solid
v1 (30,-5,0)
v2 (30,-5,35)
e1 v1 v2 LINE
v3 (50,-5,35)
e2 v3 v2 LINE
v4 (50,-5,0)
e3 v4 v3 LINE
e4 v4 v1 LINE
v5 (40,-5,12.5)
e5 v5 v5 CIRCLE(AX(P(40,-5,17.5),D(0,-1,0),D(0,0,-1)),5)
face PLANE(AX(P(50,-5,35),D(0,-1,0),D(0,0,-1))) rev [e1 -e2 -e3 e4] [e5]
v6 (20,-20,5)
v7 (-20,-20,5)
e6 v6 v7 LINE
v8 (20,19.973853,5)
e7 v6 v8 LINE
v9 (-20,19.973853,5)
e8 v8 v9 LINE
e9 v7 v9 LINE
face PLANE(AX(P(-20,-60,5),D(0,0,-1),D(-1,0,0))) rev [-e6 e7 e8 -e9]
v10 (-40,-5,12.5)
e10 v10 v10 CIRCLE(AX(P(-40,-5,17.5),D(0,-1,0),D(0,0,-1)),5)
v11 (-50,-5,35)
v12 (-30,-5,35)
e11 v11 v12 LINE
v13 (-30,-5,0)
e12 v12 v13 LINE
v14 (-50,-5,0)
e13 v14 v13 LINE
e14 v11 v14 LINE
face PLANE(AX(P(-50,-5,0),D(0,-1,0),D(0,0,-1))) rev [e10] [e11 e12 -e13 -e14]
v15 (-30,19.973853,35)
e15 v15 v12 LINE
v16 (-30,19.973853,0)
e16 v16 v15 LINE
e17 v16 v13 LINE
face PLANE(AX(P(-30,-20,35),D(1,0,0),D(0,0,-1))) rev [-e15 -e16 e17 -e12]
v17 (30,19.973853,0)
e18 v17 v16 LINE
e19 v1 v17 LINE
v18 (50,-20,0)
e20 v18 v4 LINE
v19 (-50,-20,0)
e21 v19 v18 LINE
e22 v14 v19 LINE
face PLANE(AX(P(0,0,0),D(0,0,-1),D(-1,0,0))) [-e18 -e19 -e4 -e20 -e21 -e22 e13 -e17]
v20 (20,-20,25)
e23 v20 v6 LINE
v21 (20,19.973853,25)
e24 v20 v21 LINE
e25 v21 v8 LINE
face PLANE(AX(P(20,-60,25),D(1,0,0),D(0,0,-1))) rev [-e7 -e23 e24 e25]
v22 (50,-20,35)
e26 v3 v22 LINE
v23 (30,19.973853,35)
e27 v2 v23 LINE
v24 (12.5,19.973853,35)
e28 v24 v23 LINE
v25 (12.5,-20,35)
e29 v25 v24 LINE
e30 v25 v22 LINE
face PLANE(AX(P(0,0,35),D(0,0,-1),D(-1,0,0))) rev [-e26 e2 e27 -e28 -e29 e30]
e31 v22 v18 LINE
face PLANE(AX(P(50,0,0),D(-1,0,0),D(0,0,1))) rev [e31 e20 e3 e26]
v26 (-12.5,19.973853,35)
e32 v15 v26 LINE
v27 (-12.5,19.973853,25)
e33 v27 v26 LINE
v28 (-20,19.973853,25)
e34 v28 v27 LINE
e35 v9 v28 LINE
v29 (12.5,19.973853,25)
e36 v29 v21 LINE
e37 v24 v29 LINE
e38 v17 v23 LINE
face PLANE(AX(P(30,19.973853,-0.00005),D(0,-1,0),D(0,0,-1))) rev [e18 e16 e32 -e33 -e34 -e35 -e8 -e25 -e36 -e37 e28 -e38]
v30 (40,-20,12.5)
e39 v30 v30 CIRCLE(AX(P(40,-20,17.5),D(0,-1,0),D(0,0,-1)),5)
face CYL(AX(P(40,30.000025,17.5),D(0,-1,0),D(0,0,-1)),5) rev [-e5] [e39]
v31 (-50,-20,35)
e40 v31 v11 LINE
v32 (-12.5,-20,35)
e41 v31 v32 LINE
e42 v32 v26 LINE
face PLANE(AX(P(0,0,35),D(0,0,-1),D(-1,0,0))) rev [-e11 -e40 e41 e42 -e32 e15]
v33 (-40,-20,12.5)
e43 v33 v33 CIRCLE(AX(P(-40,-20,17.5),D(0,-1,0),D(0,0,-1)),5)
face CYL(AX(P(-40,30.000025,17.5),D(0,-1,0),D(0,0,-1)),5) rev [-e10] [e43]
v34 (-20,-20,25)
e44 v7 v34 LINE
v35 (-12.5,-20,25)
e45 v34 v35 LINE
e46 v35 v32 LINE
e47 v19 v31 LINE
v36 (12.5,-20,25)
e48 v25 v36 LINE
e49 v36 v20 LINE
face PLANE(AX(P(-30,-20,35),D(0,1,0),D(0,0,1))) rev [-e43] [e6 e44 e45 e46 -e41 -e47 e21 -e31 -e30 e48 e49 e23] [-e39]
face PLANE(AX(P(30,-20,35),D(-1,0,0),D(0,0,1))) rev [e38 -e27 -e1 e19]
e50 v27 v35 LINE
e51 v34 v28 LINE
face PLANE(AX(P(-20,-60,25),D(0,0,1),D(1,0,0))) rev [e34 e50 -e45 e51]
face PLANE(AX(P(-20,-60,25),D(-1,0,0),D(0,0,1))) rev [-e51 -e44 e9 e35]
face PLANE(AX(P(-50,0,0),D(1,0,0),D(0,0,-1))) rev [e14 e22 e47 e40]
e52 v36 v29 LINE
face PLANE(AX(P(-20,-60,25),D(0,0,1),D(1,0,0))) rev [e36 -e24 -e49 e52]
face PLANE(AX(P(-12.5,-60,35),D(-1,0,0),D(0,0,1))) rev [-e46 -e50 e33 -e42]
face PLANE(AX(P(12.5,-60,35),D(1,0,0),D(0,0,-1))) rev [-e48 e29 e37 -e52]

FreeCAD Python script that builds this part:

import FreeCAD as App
import Part
import Sketcher

doc = App.newDocument("Part")
params = doc.addObject("Spreadsheet::Sheet", "Params")
for row, (alias, value) in enumerate([
    ("sketch1_width", "60 mm"),
    ("sketch1_height", "40 mm"),
    ("pad1_length", "35 mm"),
    ("sketch2_width", "40 mm"),
    ("sketch2_height", "20 mm"),
    ("pocket1_length", "80 mm"),
    ("sketch3_width", "25 mm"),
    ("sketch3_height", "10 mm"),
    ("pocket2_length", "80 mm"),
    ("sketch4_width", "15 mm"),
    ("sketch4_height", "35 mm"),
    ("pad2_length", "20 mm"),
    ("sketch5_width", "15 mm"),
    ("sketch5_height", "35 mm"),
    ("pad3_length", "20 mm"),
    ("sketch6_width", "60 mm"),
    ("sketch6_height", "35 mm"),
    ("pad4_length", "10 mm"),
    ("sketch7_diameter", "10 mm"),
    ("sketch8_width", "60 mm"),
], start=1):
    params.set(f"A{row}", alias)
    params.set(f"B{row}", "=" + value)
    params.setAlias(f"B{row}", alias)

body = doc.addObject("PartDesign::Body", "Body")

# Sketch on XY plane
sketch1 = body.newObject("Sketcher::SketchObject", "Sketch")
sketch1.AttachmentSupport = (doc.getObject("XY_Plane"), [""])
sketch1.MapMode = "FlatFace"
sketch1.addGeometry([
    Part.LineSegment(App.Vector(-30, 20, 0), App.Vector(-30, -20, 0)),
    Part.LineSegment(App.Vector(-30, -20, 0), App.Vector(30, -20, 0)),
    Part.LineSegment(App.Vector(30, -20, 0), App.Vector(30, 20, 0)),
    Part.LineSegment(App.Vector(30, 20, 0), App.Vector(-30, 20, 0)),
], False)
sketch1.addConstraint([
    Sketcher.Constraint("Coincident", 0, 2, 1, 1),
    Sketcher.Constraint("Coincident", 1, 2, 2, 1),
    Sketcher.Constraint("Coincident", 2, 2, 3, 1),
    Sketcher.Constraint("Coincident", 3, 2, 0, 1),
    Sketcher.Constraint("Vertical", 0),
    Sketcher.Constraint("Horizontal", 1),
    Sketcher.Constraint("Vertical", 2),
    Sketcher.Constraint("Horizontal", 3),
    Sketcher.Constraint("Symmetric", 0, 2, 2, 2, -1, 1),
    Sketcher.Constraint("DistanceX", 1, 1, 1, 2, 60.0),
    Sketcher.Constraint("DistanceY", 0, 2, 0, 1, 40.0),
])
sketch1.setExpression("Constraints[9]", "Params.sketch1_width")
sketch1.setExpression("Constraints[10]", "Params.sketch1_height")
pad1 = body.newObject("PartDesign::Pad", "Pad")
pad1.Profile = sketch1
pad1.setExpression("Length", "Params.pad1_length")

# Sketch on XZ plane
sketch2 = body.newObject("Sketcher::SketchObject", "Sketch001")
sketch2.AttachmentSupport = (doc.getObject("XZ_Plane"), [""])
sketch2.MapMode = "FlatFace"
sketch2.AttachmentOffset = App.Placement(App.Vector(0, 0, -20), App.Rotation())
sketch2.addGeometry([
    Part.LineSegment(App.Vector(-20, 5, 0), App.Vector(-20, 25, 0)),
    Part.LineSegment(App.Vector(-20, 25, 0), App.Vector(20, 25, 0)),
    Part.LineSegment(App.Vector(20, 25, 0), App.Vector(20, 5, 0)),
    Part.LineSegment(App.Vector(20, 5, 0), App.Vector(-20, 5, 0)),
], False)
sketch2.addConstraint([
    Sketcher.Constraint("Coincident", 0, 2, 1, 1),
    Sketcher.Constraint("Coincident", 1, 2, 2, 1),
    Sketcher.Constraint("Coincident", 2, 2, 3, 1),
    Sketcher.Constraint("Coincident", 3, 2, 0, 1),
    Sketcher.Constraint("Vertical", 0),
    Sketcher.Constraint("Horizontal", 1),
    Sketcher.Constraint("Vertical", 2),
    Sketcher.Constraint("Horizontal", 3),
    Sketcher.Constraint("DistanceX", 1, 1, 1, 2, 40.0),
    Sketcher.Constraint("DistanceY", 0, 1, 0, 2, 20.0),
    Sketcher.Constraint("DistanceX", 0, 2, -1, 1, 20.0),
    Sketcher.Constraint("DistanceY", -1, 1, 0, 2, 25.0),
])
sketch2.setExpression("Constraints[8]", "Params.sketch2_width")
sketch2.setExpression("Constraints[9]", "Params.sketch2_height")
pocket1 = body.newObject("PartDesign::Pocket", "Pocket")
pocket1.Profile = sketch2
pocket1.setExpression("Length", "Params.pocket1_length")
pocket1.Reversed = True

# Sketch on XZ plane
sketch3 = body.newObject("Sketcher::SketchObject", "Sketch002")
sketch3.AttachmentSupport = (doc.getObject("XZ_Plane"), [""])
sketch3.MapMode = "FlatFace"
sketch3.AttachmentOffset = App.Placement(App.Vector(0, 0, -20), App.Rotation())
sketch3.addGeometry([
    Part.LineSegment(App.Vector(-12, 25, 0), App.Vector(-12, 35, 0)),
    Part.LineSegment(App.Vector(-12, 35, 0), App.Vector(12, 35, 0)),
    Part.LineSegment(App.Vector(12, 35, 0), App.Vector(12, 25, 0)),
    Part.LineSegment(App.Vector(12, 25, 0), App.Vector(-12, 25, 0)),
], False)
sketch3.addConstraint([
    Sketcher.Constraint("Coincident", 0, 2, 1, 1),
    Sketcher.Constraint("Coincident", 1, 2, 2, 1),
    Sketcher.Constraint("Coincident", 2, 2, 3, 1),
    Sketcher.Constraint("Coincident", 3, 2, 0, 1),
    Sketcher.Constraint("Vertical", 0),
    Sketcher.Constraint("Horizontal", 1),
    Sketcher.Constraint("Vertical", 2),
    Sketcher.Constraint("Horizontal", 3),
    Sketcher.Constraint("DistanceX", 1, 1, 1, 2, 25.0),
    Sketcher.Constraint("DistanceY", 0, 1, 0, 2, 10.0),
    Sketcher.Constraint("DistanceY", -1, 1, 0, 2, 35.0),
    Sketcher.Constraint("DistanceX", 0, 2, -1, 1, 12.5),
])
sketch3.setExpression("Constraints[8]", "Params.sketch3_width")
sketch3.setExpression("Constraints[9]", "Params.sketch3_height")
pocket2 = body.newObject("PartDesign::Pocket", "Pocket001")
pocket2.Profile = sketch3
pocket2.setExpression("Length", "Params.pocket2_length")
pocket2.Reversed = True

# Sketch on YZ plane
sketch4 = body.newObject("Sketcher::SketchObject", "Sketch003")
sketch4.AttachmentSupport = (doc.getObject("YZ_Plane"), [""])
sketch4.MapMode = "FlatFace"
sketch4.AttachmentOffset = App.Placement(App.Vector(0, 0, 30), App.Rotation())
sketch4.addGeometry([
    Part.LineSegment(App.Vector(-5, 35, 0), App.Vector(-20, 35, 0)),
    Part.LineSegment(App.Vector(-20, 35, 0), App.Vector(-20, 0, 0)),
    Part.LineSegment(App.Vector(-20, 0, 0), App.Vector(-5, 0, 0)),
    Part.LineSegment(App.Vector(-5, 0, 0), App.Vector(-5, 35, 0)),
], False)
sketch4.addConstraint([
    Sketcher.Constraint("Coincident", 0, 2, 1, 1),
    Sketcher.Constraint("Coincident", 1, 2, 2, 1),
    Sketcher.Constraint("Coincident", 2, 2, 3, 1),
    Sketcher.Constraint("Coincident", 3, 2, 0, 1),
    Sketcher.Constraint("Horizontal", 0),
    Sketcher.Constraint("Vertical", 1),
    Sketcher.Constraint("Horizontal", 2),
    Sketcher.Constraint("Vertical", 3),
    Sketcher.Constraint("PointOnObject", 1, 2, -1),
    Sketcher.Constraint("DistanceX", 0, 2, 0, 1, 15.0),
    Sketcher.Constraint("DistanceY", 1, 2, 1, 1, 35.0),
    Sketcher.Constraint("DistanceX", 0, 2, -1, 1, 20.0),
])
sketch4.setExpression("Constraints[9]", "Params.sketch4_width")
sketch4.setExpression("Constraints[10]", "Params.sketch4_height")
pad2 = body.newObject("PartDesign::Pad", "Pad001")
pad2.Profile = sketch4
pad2.setExpression("Length", "Params.pad2_length")

# Sketch on YZ plane
sketch5 = body.newObject("Sketcher::SketchObject", "Sketch004")
sketch5.AttachmentSupport = (doc.getObject("YZ_Plane"), [""])
sketch5.MapMode = "FlatFace"
sketch5.AttachmentOffset = App.Placement(App.Vector(0, 0, -30), App.Rotation())
sketch5.addGeometry([
    Part.LineSegment(App.Vector(-5, 0, 0), App.Vector(-20, 0, 0)),
    Part.LineSegment(App.Vector(-20, 0, 0), App.Vector(-20, 35, 0)),
    Part.LineSegment(App.Vector(-20, 35, 0), App.Vector(-5, 35, 0)),
    Part.LineSegment(App.Vector(-5, 35, 0), App.Vector(-5, 0, 0)),
], False)
sketch5.addConstraint([
    Sketcher.Constraint("Coincident", 0, 2, 1, 1),
    Sketcher.Constraint("Coincident", 1, 2, 2, 1),
    Sketcher.Constraint("Coincident", 2, 2, 3, 1),
    Sketcher.Constraint("Coincident", 3, 2, 0, 1),
    Sketcher.Constraint("Horizontal", 0),
    Sketcher.Constraint("Vertical", 1),
    Sketcher.Constraint("Horizontal", 2),
    Sketcher.Constraint("Vertical", 3),
    Sketcher.Constraint("PointOnObject", 0, 2, -1),
    Sketcher.Constraint("DistanceX", 0, 2, 0, 1, 15.0),
    Sketcher.Constraint("DistanceY", 1, 1, 1, 2, 35.0),
    Sketcher.Constraint("DistanceX", 0, 2, -1, 1, 20.0),
])
sketch5.setExpression("Constraints[9]", "Params.sketch5_width")
sketch5.setExpression("Constraints[10]", "Params.sketch5_height")
pad3 = body.newObject("PartDesign::Pad", "Pad002")
pad3.Profile = sketch5
pad3.setExpression("Length", "Params.pad3_length")
pad3.Reversed = True

# Sketch on XZ plane
sketch6 = body.newObject("Sketcher::SketchObject", "Sketch005")
sketch6.AttachmentSupport = (doc.getObject("XZ_Plane"), [""])
sketch6.MapMode = "FlatFace"
sketch6.AttachmentOffset = App.Placement(App.Vector(0, 0, -20), App.Rotation())
sketch6.addGeometry([
    Part.LineSegment(App.Vector(-30, 0, 0), App.Vector(-30, 35, 0)),
    Part.LineSegment(App.Vector(-30, 35, 0), App.Vector(30, 35, 0)),
    Part.LineSegment(App.Vector(30, 35, 0), App.Vector(30, 0, 0)),
    Part.LineSegment(App.Vector(30, 0, 0), App.Vector(-30, 0, 0)),
], False)
sketch6.addConstraint([
    Sketcher.Constraint("Coincident", 0, 2, 1, 1),
    Sketcher.Constraint("Coincident", 1, 2, 2, 1),
    Sketcher.Constraint("Coincident", 2, 2, 3, 1),
    Sketcher.Constraint("Coincident", 3, 2, 0, 1),
    Sketcher.Constraint("Vertical", 0),
    Sketcher.Constraint("Horizontal", 1),
    Sketcher.Constraint("Vertical", 2),
    Sketcher.Constraint("Horizontal", 3),
    Sketcher.Constraint("Symmetric", 2, 2, 3, 2, -1, 1),
    Sketcher.Constraint("DistanceX", 1, 1, 1, 2, 60.0),
    Sketcher.Constraint("DistanceY", 0, 1, 0, 2, 35.0),
])
sketch6.setExpression("Constraints[9]", "Params.sketch6_width")
sketch6.setExpression("Constraints[10]", "Params.sketch6_height")
pad4 = body.newObject("PartDesign::Pad", "Pad003")
pad4.Profile = sketch6
pad4.setExpression("Length", "Params.pad4_length")
pad4.Reversed = True

# Sketch on XZ plane
sketch7 = body.newObject("Sketcher::SketchObject", "Sketch006")
sketch7.AttachmentSupport = (doc.getObject("XZ_Plane"), [""])
sketch7.MapMode = "FlatFace"
sketch7.AttachmentOffset = App.Placement(App.Vector(0, 0, 20), App.Rotation())
sketch7.addGeometry([
    Part.Circle(App.Vector(40, 18, 0), App.Vector(0, 0, 1), 5),
    Part.Circle(App.Vector(-40, 18, 0), App.Vector(0, 0, 1), 5),
], False)
sketch7.addConstraint([
    Sketcher.Constraint("Equal", 0, 1),
    Sketcher.Constraint("Symmetric", 0, 3, 1, 3, -2),
    Sketcher.Constraint("Diameter", 0, 10.0),
    Sketcher.Constraint("DistanceX", -1, 1, 0, 3, 40.0),
    Sketcher.Constraint("DistanceY", -1, 1, 0, 3, 17.5),
])
sketch7.setExpression("Constraints[2]", "Params.sketch7_diameter")
pocket3 = body.newObject("PartDesign::Pocket", "Pocket002")
pocket3.Profile = sketch7
pocket3.Type = "ThroughAll"

# Sketch on XY plane
sketch8 = body.newObject("Sketcher::SketchObject", "Sketch007")
sketch8.AttachmentSupport = (doc.getObject("XY_Plane"), [""])
sketch8.MapMode = "FlatFace"
sketch8.AttachmentOffset = App.Placement(App.Vector(0, 0, 35), App.Rotation())
sketch8.addGeometry([
    Part.LineSegment(App.Vector(-30, 30, 0), App.Vector(-30, 20, 0)),
    Part.LineSegment(App.Vector(-30, 20, 0), App.Vector(30, 20, 0)),
    Part.LineSegment(App.Vector(30, 20, 0), App.Vector(30, 30, 0)),
    Part.LineSegment(App.Vector(30, 30, 0), App.Vector(-30, 30, 0)),
], False)
sketch8.addConstraint([
    Sketcher.Constraint("Coincident", 0, 2, 1, 1),
    Sketcher.Constraint("Coincident", 1, 2, 2, 1),
    Sketcher.Constraint("Coincident", 2, 2, 3, 1),
    Sketcher.Constraint("Coincident", 3, 2, 0, 1),
    Sketcher.Constraint("Vertical", 0),
    Sketcher.Constraint("Horizontal", 1),
    Sketcher.Constraint("Vertical", 2),
    Sketcher.Constraint("Horizontal", 3),
    Sketcher.Constraint("DistanceX", 1, 1, 1, 2, 60.0),
    Sketcher.Constraint("DistanceX", 0, 2, -1, 1, 30.0),
    Sketcher.Constraint("DistanceY", -1, 1, 2, 2, 30.0),
    Sketcher.Constraint("DistanceY", 0, 2, 0, 1, 10.026147),
])
sketch8.setExpression("Constraints[8]", "Params.sketch8_width")
pocket4 = body.newObject("PartDesign::Pocket", "Pocket003")
pocket4.Profile = sketch8
pocket4.Type = "ThroughAll"

doc.recompute()
